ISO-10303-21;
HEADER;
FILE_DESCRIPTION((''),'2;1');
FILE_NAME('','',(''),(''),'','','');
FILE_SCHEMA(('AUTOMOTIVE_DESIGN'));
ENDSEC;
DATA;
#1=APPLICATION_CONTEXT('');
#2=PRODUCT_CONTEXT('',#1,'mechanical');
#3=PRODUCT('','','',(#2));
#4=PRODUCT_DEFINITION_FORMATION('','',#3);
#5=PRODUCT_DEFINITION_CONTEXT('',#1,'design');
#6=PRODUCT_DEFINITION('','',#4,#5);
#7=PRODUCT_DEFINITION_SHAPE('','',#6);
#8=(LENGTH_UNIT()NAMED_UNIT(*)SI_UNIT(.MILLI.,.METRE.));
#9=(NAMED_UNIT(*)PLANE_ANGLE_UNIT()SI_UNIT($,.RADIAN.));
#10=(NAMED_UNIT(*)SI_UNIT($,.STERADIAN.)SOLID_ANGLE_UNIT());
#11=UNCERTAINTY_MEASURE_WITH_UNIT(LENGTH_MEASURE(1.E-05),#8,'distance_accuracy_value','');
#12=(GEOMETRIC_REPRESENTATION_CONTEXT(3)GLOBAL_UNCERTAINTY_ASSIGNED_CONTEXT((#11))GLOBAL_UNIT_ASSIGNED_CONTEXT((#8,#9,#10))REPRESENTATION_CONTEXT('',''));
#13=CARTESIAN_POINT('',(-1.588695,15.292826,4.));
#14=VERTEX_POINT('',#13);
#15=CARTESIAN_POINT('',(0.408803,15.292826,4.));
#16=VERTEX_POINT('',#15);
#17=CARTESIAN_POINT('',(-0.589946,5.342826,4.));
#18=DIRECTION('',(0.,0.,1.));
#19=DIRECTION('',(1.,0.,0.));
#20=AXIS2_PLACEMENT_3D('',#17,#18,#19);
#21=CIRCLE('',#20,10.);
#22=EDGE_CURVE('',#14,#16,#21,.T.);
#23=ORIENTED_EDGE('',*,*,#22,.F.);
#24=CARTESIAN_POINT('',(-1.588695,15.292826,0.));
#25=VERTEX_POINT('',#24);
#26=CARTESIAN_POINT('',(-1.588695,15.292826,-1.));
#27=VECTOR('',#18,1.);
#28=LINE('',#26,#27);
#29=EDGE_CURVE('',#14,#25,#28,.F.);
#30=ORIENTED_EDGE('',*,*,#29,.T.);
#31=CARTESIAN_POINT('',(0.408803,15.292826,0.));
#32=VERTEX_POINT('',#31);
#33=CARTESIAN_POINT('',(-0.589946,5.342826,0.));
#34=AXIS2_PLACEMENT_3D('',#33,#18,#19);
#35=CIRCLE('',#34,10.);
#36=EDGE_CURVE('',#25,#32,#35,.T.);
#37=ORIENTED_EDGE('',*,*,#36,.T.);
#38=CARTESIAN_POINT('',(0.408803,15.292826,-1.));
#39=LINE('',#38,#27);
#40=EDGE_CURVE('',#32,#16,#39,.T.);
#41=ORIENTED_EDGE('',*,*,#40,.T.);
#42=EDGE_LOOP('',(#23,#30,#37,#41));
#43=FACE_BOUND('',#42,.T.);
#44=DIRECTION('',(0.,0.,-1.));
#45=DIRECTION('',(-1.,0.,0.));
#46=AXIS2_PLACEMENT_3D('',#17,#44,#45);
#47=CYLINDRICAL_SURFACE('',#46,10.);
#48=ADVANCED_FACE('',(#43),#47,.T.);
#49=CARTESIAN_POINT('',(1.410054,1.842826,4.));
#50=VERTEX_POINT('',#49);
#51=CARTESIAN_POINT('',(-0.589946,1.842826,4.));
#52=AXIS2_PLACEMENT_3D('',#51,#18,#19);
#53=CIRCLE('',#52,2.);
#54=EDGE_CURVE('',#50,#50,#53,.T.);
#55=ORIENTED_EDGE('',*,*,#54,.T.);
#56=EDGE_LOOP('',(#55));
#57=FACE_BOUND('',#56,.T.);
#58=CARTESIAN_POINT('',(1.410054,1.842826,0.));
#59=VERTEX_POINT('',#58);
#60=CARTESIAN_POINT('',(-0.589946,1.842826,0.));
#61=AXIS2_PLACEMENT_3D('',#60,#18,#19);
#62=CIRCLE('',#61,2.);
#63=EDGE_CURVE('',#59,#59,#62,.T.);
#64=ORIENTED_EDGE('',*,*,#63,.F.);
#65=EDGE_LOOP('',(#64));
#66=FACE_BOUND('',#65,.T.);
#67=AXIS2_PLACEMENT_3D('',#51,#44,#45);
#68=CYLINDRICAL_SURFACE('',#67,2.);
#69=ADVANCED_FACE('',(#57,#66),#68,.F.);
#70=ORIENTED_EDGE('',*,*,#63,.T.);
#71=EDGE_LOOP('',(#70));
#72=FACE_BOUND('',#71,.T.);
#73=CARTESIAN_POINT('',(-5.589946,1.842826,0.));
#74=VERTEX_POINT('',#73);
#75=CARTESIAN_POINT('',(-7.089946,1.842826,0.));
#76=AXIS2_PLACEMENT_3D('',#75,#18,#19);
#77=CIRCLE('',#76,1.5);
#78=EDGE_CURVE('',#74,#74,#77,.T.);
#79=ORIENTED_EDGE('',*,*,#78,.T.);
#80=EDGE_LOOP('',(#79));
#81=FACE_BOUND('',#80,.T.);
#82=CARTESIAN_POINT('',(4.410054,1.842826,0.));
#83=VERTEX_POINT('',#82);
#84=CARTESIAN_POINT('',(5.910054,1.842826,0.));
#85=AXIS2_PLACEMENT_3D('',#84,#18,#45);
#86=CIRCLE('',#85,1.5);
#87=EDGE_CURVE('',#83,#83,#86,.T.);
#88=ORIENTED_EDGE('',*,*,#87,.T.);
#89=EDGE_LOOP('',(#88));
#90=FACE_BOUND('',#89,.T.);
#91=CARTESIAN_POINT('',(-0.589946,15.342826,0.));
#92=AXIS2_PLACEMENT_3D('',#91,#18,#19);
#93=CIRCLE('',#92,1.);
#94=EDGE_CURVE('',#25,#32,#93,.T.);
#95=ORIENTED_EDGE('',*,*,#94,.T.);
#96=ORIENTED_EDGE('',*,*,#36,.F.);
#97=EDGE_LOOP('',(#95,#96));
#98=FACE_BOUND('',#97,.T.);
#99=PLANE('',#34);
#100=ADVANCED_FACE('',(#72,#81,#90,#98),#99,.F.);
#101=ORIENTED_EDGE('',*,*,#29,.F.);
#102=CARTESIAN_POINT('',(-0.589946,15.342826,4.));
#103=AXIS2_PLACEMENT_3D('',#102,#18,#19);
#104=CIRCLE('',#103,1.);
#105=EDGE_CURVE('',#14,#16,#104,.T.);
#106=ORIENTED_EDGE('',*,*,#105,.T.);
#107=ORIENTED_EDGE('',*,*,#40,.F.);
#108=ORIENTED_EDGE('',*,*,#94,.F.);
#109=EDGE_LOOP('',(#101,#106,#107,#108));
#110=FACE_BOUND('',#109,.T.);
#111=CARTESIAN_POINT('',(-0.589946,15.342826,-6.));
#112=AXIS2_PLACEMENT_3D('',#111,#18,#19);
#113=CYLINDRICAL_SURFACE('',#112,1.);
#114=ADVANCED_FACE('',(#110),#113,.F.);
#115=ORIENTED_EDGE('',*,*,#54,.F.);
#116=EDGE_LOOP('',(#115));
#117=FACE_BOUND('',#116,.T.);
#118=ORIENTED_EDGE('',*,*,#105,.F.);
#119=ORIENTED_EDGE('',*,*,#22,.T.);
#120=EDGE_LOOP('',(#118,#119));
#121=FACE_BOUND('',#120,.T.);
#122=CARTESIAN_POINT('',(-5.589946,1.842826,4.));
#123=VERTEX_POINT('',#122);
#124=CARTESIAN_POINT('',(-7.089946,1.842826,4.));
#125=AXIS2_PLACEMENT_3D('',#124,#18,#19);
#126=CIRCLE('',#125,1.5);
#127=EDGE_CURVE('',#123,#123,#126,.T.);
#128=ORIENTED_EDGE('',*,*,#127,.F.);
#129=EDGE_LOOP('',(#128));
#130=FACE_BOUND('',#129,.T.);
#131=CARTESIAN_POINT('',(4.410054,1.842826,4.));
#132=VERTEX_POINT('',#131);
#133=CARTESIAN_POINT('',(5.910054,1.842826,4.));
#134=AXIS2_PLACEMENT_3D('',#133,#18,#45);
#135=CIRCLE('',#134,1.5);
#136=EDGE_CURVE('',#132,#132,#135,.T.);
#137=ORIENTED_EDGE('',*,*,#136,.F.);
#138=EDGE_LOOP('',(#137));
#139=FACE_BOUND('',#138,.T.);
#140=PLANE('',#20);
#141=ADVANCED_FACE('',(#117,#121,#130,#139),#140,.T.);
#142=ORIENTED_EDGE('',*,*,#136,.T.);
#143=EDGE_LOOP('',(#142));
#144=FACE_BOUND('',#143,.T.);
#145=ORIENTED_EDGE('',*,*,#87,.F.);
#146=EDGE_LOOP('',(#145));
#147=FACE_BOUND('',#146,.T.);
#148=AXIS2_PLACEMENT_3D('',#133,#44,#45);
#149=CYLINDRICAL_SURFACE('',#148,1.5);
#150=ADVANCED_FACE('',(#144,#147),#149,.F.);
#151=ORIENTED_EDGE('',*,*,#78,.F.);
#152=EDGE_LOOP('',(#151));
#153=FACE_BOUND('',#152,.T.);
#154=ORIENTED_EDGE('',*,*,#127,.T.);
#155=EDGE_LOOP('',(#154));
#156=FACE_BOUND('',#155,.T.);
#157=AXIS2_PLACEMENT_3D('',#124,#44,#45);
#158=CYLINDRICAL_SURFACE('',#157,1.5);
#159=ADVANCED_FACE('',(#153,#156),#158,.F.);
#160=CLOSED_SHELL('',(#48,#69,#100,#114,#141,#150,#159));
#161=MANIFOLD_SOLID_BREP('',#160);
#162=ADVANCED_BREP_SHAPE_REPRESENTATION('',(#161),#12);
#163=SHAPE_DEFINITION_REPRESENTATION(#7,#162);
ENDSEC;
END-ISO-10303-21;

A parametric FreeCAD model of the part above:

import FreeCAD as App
import Part
import Sketcher

doc = App.newDocument("Part")
body = doc.addObject("PartDesign::Body", "Body")

sketch1 = body.newObject("Sketcher::SketchObject", "Sketch")
sketch1.AttachmentSupport = (doc.getObject("XY_Plane"), [""])
sketch1.MapMode = "FlatFace"
sketch1.addGeometry(Part.Circle(App.Vector(-0.6, 5.3, 0), App.Vector(0, 0, 1), 10), False)
sketch1.addGeometry(Part.Circle(App.Vector(-7.1, 1.8, 0), App.Vector(0, 0, 1), 1.5), False)
sketch1.addGeometry(Part.Circle(App.Vector(-0.6, 1.8, 0), App.Vector(0, 0, 1), 2), False)
sketch1.addGeometry(Part.Circle(App.Vector(5.9, 1.8, 0), App.Vector(0, 0, 1), 1.5), False)
sketch1.addConstraint(Sketcher.Constraint("Equal", 1, 3))
sketch1.addConstraint(Sketcher.Constraint("Horizontal", 1, 3, 2, 3))
sketch1.addConstraint(Sketcher.Constraint("Horizontal", 2, 3, 3, 3))
sketch1.addConstraint(Sketcher.Constraint("Vertical", 0, 3, 2, 3))
sketch1.addConstraint(Sketcher.Constraint("Diameter", 0, 20.0))
sketch1.addConstraint(Sketcher.Constraint("Diameter", 1, 3.0))
sketch1.addConstraint(Sketcher.Constraint("Diameter", 2, 4.0))
sketch1.addConstraint(Sketcher.Constraint("DistanceX", 1, 3, 3, 3, 13.0))
sketch1.addConstraint(Sketcher.Constraint("DistanceX", 1, 3, 0, 3, 6.5))
sketch1.addConstraint(Sketcher.Constraint("DistanceY", 1, 3, 0, 3, 3.5))
sketch1.addConstraint(Sketcher.Constraint("DistanceX", 0, 3, -1, 1, 0.589946))
sketch1.addConstraint(Sketcher.Constraint("DistanceY", -1, 1, 0, 3, 5.342826))
pad1 = body.newObject("PartDesign::Pad", "Pad")
pad1.Profile = sketch1
pad1.Length = 4

sketch2 = body.newObject("Sketcher::SketchObject", "Sketch001")
sketch2.AttachmentSupport = (doc.getObject("XY_Plane"), [""])
sketch2.MapMode = "FlatFace"
sketch2.AttachmentOffset = App.Placement(App.Vector(0, 0, 4), App.Rotation())
sketch2.addGeometry(Part.Circle(App.Vector(-0.6, 15.3, 0), App.Vector(0, 0, 1), 1), False)
sketch2.addConstraint(Sketcher.Constraint("Diameter", 0, 2.0))
sketch2.addConstraint(Sketcher.Constraint("DistanceX", 0, 3, -1, 1, 0.589946))
sketch2.addConstraint(Sketcher.Constraint("DistanceY", -1, 1, 0, 3, 15.342826))
pocket1 = body.newObject("PartDesign::Pocket", "Pocket")
pocket1.Profile = sketch2
pocket1.Length = 10

doc.recompute()
